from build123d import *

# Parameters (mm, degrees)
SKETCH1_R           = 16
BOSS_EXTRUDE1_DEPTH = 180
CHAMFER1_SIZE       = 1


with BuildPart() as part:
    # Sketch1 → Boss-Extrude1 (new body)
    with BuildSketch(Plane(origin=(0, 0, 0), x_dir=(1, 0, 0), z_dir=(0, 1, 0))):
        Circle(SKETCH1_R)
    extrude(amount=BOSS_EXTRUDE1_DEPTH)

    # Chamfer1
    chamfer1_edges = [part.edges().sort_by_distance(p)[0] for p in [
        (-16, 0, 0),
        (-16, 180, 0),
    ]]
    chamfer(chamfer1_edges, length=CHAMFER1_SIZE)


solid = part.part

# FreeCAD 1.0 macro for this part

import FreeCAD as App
import Part
import Sketcher
from FreeCAD import Vector
Q = App.Units.Quantity


def edges_at(feature, points):
    """Names of the edges that pass closest to the given points."""
    edges = feature.Shape.Edges
    near = lambda p: min(range(len(edges)), key=lambda i: edges[i].distToShape(Part.Vertex(*p))[0])
    return sorted({f"Edge{near(p) + 1}" for p in points})

doc = App.newDocument("Part")
params = doc.addObject("Spreadsheet::Sheet", "Params")
for row, (alias, value) in enumerate([
    ("sketch1_diameter", "32 mm"),
    ("pad1_length", "180 mm"),
    ("chamfer_size", "1 mm"),
], start=1):
    params.set(f"A{row}", alias)
    params.set(f"B{row}", "=" + value)
    params.setAlias(f"B{row}", alias)

body = doc.addObject("PartDesign::Body", "Body")

# Sketch on XZ plane
sketch1 = body.newObject("Sketcher::SketchObject", "Sketch")
sketch1.AttachmentSupport = (doc.getObject("XZ_Plane"), [""])
sketch1.MapMode = "FlatFace"
sketch1.addGeometry(Part.Circle(Vector(0, 0, 0), Vector(0, 0, 1), 16), False)
sketch1.addConstraint([
    Sketcher.Constraint("Coincident", 0, 3, -1, 1),
    Sketcher.Constraint("Diameter", 0, Q("32 mm")),
])
sketch1.setExpression("Constraints[1]", "Params.sketch1_diameter")
pad1 = body.newObject("PartDesign::Pad", "Pad")
pad1.Profile = sketch1
pad1.setExpression("Length", "Params.pad1_length")
pad1.Reversed = True
doc.recompute()

chamfer = body.newObject("PartDesign::Chamfer", "Chamfer")
chamfer.Base = (pad1, edges_at(pad1, [(-16, 0, 0), (-16, 180, 0)]))
chamfer.setExpression("Size", "Params.chamfer_size")

doc.recompute()
